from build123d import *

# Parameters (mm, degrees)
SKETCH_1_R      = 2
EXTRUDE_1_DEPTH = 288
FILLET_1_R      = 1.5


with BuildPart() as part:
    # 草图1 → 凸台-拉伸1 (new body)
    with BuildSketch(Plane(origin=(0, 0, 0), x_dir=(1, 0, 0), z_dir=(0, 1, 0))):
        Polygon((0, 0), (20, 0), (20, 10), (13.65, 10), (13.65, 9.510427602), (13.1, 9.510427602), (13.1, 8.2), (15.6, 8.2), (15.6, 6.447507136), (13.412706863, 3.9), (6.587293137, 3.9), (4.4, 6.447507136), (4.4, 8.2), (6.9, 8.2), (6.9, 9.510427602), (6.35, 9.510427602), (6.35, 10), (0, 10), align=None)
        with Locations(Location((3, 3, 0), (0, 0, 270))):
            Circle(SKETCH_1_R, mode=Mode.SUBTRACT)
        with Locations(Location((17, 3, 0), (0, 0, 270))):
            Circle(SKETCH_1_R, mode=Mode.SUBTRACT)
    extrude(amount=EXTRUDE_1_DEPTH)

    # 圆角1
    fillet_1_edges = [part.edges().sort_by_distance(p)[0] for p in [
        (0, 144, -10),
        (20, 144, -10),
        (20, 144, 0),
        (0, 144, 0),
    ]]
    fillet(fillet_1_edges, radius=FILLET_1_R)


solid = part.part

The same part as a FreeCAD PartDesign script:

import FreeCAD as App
import Part
import Sketcher

V = App.Vector
Q = App.Units.Quantity


def edges_at(feature, points):
    """Names of the edges that pass closest to the given points."""
    edges = feature.Shape.Edges
    near = lambda p: min(range(len(edges)), key=lambda i: edges[i].distToShape(Part.Vertex(*p))[0])
    return sorted({f"Edge{near(p) + 1}" for p in points})

doc = App.newDocument("Part")
body = doc.addObject("PartDesign::Body", "Body")

# Sketch on XZ plane
sketch1 = doc.addObject("Sketcher::SketchObject", "Sketch")
body.addObject(sketch1)
sketch1.AttachmentSupport = (doc.XZ_Plane, [""])
sketch1.MapMode = "FlatFace"
sketch1.addGeometry([
    Part.LineSegment(V(0, 0, 0), V(20, 0, 0)),  # 0
    Part.LineSegment(V(20, 0, 0), V(20, -10, 0)),  # 1
    Part.LineSegment(V(20, -10, 0), V(13.65, -10, 0)),  # 2
    Part.LineSegment(V(13.65, -10, 0), V(13.65, -9.51, 0)),  # 3
    Part.LineSegment(V(13.65, -9.51, 0), V(13.1, -9.51, 0)),  # 4
    Part.LineSegment(V(13.1, -9.51, 0), V(13.1, -8.2, 0)),  # 5
    Part.LineSegment(V(13.1, -8.2, 0), V(15.6, -8.2, 0)),  # 6
    Part.LineSegment(V(15.6, -8.2, 0), V(15.6, -6.45, 0)),  # 7
    Part.LineSegment(V(15.6, -6.45, 0), V(13.41, -3.9, 0)),  # 8
    Part.LineSegment(V(13.41, -3.9, 0), V(6.59, -3.9, 0)),  # 9
    Part.LineSegment(V(6.59, -3.9, 0), V(4.4, -6.45, 0)),  # 10
    Part.LineSegment(V(4.4, -6.45, 0), V(4.4, -8.2, 0)),  # 11
    Part.LineSegment(V(4.4, -8.2, 0), V(6.9, -8.2, 0)),  # 12
    Part.LineSegment(V(6.9, -8.2, 0), V(6.9, -9.51, 0)),  # 13
    Part.LineSegment(V(6.9, -9.51, 0), V(6.35, -9.51, 0)),  # 14
    Part.LineSegment(V(6.35, -9.51, 0), V(6.35, -10, 0)),  # 15
    Part.LineSegment(V(6.35, -10, 0), V(0, -10, 0)),  # 16
    Part.LineSegment(V(0, -10, 0), V(0, 0, 0)),  # 17
    Part.Circle(V(3, -3, 0), V(0, 0, 1), 2),  # 18
    Part.Circle(V(17, -3, 0), V(0, 0, 1), 2),  # 19
], False)
sketch1.addConstraint([
    Sketcher.Constraint("Coincident", 0, 2, 1, 1),
    Sketcher.Constraint("Coincident", 1, 2, 2, 1),
    Sketcher.Constraint("Coincident", 2, 2, 3, 1),
    Sketcher.Constraint("Coincident", 3, 2, 4, 1),
    Sketcher.Constraint("Coincident", 4, 2, 5, 1),
    Sketcher.Constraint("Coincident", 5, 2, 6, 1),
    Sketcher.Constraint("Coincident", 6, 2, 7, 1),
    Sketcher.Constraint("Coincident", 7, 2, 8, 1),
    Sketcher.Constraint("Coincident", 8, 2, 9, 1),
    Sketcher.Constraint("Coincident", 9, 2, 10, 1),
    Sketcher.Constraint("Coincident", 10, 2, 11, 1),
    Sketcher.Constraint("Coincident", 11, 2, 12, 1),
    Sketcher.Constraint("Coincident", 12, 2, 13, 1),
    Sketcher.Constraint("Coincident", 13, 2, 14, 1),
    Sketcher.Constraint("Coincident", 14, 2, 15, 1),
    Sketcher.Constraint("Coincident", 15, 2, 16, 1),
    Sketcher.Constraint("Coincident", 16, 2, 17, 1),
    Sketcher.Constraint("Coincident", 17, 2, 0, 1),
    Sketcher.Constraint("Horizontal", 0),
    Sketcher.Constraint("Vertical", 1),
    Sketcher.Constraint("Horizontal", 2),
    Sketcher.Constraint("Vertical", 3),
    Sketcher.Constraint("Horizontal", 4),
    Sketcher.Constraint("Vertical", 5),
    Sketcher.Constraint("Horizontal", 6),
    Sketcher.Constraint("Vertical", 7),
    Sketcher.Constraint("Horizontal", 9),
    Sketcher.Constraint("Vertical", 11),
    Sketcher.Constraint("Horizontal", 12),
    Sketcher.Constraint("Vertical", 13),
    Sketcher.Constraint("Horizontal", 14),
    Sketcher.Constraint("Vertical", 15),
    Sketcher.Constraint("Horizontal", 16),
    Sketcher.Constraint("Vertical", 17),
    Sketcher.Constraint("Coincident", 17, 2, -1, 1),
    Sketcher.Constraint("Equal", 18, 19),
    Sketcher.Constraint("Horizontal", 18, 3, 19, 3),
    Sketcher.Constraint("Horizontal", 7, 2, 10, 2),
    Sketcher.Constraint("Horizontal", 6, 2, 11, 2),
    Sketcher.Constraint("Horizontal", 4, 2, 13, 2),
    Sketcher.Constraint("Horizontal", 2, 2, 15, 2),
    Sketcher.Constraint("Equal", 6, 12),
    Sketcher.Constraint("Equal", 4, 14),
    Sketcher.Constraint("Equal", 2, 16),
    Sketcher.Constraint("Equal", 8, 10),
    Sketcher.Constraint("Diameter", 18, Q("4 mm")),
    Sketcher.Constraint("DistanceX", 0, 1, 0, 2, Q("20 mm")),
    Sketcher.Constraint("DistanceY", 1, 2, 1, 1, Q("10 mm")),
    Sketcher.Constraint("DistanceX", 6, 1, 6, 2, Q("2.5 mm")),
    Sketcher.Constraint("DistanceX", -1, 1, 18, 3, Q("3 mm")),
    Sketcher.Constraint("DistanceY", 18, 3, -1, 1, Q("3 mm")),
    Sketcher.Constraint("DistanceX", -1, 1, 19, 3, Q("17 mm")),
    Sketcher.Constraint("DistanceX", 2, 2, 2, 1, Q("6.35 mm")),
    Sketcher.Constraint("DistanceX", 4, 2, 4, 1, Q("0.55 mm")),
    Sketcher.Constraint("DistanceY", 5, 2, -1, 1, Q("8.2 mm")),
    Sketcher.Constraint("DistanceY", 8, 2, -1, 1, Q("3.9 mm")),
    Sketcher.Constraint("DistanceX", 9, 2, 9, 1, Q("6.825414 mm")),
    Sketcher.Constraint("DistanceY", 3, 1, 3, 2, Q("0.489572 mm")),
    Sketcher.Constraint("DistanceY", 7, 1, 7, 2, Q("1.752493 mm")),
])
pad1 = doc.addObject("PartDesign::Pad", "Pad")
body.addObject(pad1)
pad1.Profile = sketch1
pad1.Length = 288
pad1.Reversed = True
doc.recompute()

fillet = doc.addObject("PartDesign::Fillet", "Fillet")
body.addObject(fillet)
fillet.Base = (pad1, edges_at(pad1, [
    (0, 144, -10),
    (20, 144, -10),
    (20, 144, 0),
    (0, 144, 0),
]))
fillet.Radius = 1.5

doc.recompute()
